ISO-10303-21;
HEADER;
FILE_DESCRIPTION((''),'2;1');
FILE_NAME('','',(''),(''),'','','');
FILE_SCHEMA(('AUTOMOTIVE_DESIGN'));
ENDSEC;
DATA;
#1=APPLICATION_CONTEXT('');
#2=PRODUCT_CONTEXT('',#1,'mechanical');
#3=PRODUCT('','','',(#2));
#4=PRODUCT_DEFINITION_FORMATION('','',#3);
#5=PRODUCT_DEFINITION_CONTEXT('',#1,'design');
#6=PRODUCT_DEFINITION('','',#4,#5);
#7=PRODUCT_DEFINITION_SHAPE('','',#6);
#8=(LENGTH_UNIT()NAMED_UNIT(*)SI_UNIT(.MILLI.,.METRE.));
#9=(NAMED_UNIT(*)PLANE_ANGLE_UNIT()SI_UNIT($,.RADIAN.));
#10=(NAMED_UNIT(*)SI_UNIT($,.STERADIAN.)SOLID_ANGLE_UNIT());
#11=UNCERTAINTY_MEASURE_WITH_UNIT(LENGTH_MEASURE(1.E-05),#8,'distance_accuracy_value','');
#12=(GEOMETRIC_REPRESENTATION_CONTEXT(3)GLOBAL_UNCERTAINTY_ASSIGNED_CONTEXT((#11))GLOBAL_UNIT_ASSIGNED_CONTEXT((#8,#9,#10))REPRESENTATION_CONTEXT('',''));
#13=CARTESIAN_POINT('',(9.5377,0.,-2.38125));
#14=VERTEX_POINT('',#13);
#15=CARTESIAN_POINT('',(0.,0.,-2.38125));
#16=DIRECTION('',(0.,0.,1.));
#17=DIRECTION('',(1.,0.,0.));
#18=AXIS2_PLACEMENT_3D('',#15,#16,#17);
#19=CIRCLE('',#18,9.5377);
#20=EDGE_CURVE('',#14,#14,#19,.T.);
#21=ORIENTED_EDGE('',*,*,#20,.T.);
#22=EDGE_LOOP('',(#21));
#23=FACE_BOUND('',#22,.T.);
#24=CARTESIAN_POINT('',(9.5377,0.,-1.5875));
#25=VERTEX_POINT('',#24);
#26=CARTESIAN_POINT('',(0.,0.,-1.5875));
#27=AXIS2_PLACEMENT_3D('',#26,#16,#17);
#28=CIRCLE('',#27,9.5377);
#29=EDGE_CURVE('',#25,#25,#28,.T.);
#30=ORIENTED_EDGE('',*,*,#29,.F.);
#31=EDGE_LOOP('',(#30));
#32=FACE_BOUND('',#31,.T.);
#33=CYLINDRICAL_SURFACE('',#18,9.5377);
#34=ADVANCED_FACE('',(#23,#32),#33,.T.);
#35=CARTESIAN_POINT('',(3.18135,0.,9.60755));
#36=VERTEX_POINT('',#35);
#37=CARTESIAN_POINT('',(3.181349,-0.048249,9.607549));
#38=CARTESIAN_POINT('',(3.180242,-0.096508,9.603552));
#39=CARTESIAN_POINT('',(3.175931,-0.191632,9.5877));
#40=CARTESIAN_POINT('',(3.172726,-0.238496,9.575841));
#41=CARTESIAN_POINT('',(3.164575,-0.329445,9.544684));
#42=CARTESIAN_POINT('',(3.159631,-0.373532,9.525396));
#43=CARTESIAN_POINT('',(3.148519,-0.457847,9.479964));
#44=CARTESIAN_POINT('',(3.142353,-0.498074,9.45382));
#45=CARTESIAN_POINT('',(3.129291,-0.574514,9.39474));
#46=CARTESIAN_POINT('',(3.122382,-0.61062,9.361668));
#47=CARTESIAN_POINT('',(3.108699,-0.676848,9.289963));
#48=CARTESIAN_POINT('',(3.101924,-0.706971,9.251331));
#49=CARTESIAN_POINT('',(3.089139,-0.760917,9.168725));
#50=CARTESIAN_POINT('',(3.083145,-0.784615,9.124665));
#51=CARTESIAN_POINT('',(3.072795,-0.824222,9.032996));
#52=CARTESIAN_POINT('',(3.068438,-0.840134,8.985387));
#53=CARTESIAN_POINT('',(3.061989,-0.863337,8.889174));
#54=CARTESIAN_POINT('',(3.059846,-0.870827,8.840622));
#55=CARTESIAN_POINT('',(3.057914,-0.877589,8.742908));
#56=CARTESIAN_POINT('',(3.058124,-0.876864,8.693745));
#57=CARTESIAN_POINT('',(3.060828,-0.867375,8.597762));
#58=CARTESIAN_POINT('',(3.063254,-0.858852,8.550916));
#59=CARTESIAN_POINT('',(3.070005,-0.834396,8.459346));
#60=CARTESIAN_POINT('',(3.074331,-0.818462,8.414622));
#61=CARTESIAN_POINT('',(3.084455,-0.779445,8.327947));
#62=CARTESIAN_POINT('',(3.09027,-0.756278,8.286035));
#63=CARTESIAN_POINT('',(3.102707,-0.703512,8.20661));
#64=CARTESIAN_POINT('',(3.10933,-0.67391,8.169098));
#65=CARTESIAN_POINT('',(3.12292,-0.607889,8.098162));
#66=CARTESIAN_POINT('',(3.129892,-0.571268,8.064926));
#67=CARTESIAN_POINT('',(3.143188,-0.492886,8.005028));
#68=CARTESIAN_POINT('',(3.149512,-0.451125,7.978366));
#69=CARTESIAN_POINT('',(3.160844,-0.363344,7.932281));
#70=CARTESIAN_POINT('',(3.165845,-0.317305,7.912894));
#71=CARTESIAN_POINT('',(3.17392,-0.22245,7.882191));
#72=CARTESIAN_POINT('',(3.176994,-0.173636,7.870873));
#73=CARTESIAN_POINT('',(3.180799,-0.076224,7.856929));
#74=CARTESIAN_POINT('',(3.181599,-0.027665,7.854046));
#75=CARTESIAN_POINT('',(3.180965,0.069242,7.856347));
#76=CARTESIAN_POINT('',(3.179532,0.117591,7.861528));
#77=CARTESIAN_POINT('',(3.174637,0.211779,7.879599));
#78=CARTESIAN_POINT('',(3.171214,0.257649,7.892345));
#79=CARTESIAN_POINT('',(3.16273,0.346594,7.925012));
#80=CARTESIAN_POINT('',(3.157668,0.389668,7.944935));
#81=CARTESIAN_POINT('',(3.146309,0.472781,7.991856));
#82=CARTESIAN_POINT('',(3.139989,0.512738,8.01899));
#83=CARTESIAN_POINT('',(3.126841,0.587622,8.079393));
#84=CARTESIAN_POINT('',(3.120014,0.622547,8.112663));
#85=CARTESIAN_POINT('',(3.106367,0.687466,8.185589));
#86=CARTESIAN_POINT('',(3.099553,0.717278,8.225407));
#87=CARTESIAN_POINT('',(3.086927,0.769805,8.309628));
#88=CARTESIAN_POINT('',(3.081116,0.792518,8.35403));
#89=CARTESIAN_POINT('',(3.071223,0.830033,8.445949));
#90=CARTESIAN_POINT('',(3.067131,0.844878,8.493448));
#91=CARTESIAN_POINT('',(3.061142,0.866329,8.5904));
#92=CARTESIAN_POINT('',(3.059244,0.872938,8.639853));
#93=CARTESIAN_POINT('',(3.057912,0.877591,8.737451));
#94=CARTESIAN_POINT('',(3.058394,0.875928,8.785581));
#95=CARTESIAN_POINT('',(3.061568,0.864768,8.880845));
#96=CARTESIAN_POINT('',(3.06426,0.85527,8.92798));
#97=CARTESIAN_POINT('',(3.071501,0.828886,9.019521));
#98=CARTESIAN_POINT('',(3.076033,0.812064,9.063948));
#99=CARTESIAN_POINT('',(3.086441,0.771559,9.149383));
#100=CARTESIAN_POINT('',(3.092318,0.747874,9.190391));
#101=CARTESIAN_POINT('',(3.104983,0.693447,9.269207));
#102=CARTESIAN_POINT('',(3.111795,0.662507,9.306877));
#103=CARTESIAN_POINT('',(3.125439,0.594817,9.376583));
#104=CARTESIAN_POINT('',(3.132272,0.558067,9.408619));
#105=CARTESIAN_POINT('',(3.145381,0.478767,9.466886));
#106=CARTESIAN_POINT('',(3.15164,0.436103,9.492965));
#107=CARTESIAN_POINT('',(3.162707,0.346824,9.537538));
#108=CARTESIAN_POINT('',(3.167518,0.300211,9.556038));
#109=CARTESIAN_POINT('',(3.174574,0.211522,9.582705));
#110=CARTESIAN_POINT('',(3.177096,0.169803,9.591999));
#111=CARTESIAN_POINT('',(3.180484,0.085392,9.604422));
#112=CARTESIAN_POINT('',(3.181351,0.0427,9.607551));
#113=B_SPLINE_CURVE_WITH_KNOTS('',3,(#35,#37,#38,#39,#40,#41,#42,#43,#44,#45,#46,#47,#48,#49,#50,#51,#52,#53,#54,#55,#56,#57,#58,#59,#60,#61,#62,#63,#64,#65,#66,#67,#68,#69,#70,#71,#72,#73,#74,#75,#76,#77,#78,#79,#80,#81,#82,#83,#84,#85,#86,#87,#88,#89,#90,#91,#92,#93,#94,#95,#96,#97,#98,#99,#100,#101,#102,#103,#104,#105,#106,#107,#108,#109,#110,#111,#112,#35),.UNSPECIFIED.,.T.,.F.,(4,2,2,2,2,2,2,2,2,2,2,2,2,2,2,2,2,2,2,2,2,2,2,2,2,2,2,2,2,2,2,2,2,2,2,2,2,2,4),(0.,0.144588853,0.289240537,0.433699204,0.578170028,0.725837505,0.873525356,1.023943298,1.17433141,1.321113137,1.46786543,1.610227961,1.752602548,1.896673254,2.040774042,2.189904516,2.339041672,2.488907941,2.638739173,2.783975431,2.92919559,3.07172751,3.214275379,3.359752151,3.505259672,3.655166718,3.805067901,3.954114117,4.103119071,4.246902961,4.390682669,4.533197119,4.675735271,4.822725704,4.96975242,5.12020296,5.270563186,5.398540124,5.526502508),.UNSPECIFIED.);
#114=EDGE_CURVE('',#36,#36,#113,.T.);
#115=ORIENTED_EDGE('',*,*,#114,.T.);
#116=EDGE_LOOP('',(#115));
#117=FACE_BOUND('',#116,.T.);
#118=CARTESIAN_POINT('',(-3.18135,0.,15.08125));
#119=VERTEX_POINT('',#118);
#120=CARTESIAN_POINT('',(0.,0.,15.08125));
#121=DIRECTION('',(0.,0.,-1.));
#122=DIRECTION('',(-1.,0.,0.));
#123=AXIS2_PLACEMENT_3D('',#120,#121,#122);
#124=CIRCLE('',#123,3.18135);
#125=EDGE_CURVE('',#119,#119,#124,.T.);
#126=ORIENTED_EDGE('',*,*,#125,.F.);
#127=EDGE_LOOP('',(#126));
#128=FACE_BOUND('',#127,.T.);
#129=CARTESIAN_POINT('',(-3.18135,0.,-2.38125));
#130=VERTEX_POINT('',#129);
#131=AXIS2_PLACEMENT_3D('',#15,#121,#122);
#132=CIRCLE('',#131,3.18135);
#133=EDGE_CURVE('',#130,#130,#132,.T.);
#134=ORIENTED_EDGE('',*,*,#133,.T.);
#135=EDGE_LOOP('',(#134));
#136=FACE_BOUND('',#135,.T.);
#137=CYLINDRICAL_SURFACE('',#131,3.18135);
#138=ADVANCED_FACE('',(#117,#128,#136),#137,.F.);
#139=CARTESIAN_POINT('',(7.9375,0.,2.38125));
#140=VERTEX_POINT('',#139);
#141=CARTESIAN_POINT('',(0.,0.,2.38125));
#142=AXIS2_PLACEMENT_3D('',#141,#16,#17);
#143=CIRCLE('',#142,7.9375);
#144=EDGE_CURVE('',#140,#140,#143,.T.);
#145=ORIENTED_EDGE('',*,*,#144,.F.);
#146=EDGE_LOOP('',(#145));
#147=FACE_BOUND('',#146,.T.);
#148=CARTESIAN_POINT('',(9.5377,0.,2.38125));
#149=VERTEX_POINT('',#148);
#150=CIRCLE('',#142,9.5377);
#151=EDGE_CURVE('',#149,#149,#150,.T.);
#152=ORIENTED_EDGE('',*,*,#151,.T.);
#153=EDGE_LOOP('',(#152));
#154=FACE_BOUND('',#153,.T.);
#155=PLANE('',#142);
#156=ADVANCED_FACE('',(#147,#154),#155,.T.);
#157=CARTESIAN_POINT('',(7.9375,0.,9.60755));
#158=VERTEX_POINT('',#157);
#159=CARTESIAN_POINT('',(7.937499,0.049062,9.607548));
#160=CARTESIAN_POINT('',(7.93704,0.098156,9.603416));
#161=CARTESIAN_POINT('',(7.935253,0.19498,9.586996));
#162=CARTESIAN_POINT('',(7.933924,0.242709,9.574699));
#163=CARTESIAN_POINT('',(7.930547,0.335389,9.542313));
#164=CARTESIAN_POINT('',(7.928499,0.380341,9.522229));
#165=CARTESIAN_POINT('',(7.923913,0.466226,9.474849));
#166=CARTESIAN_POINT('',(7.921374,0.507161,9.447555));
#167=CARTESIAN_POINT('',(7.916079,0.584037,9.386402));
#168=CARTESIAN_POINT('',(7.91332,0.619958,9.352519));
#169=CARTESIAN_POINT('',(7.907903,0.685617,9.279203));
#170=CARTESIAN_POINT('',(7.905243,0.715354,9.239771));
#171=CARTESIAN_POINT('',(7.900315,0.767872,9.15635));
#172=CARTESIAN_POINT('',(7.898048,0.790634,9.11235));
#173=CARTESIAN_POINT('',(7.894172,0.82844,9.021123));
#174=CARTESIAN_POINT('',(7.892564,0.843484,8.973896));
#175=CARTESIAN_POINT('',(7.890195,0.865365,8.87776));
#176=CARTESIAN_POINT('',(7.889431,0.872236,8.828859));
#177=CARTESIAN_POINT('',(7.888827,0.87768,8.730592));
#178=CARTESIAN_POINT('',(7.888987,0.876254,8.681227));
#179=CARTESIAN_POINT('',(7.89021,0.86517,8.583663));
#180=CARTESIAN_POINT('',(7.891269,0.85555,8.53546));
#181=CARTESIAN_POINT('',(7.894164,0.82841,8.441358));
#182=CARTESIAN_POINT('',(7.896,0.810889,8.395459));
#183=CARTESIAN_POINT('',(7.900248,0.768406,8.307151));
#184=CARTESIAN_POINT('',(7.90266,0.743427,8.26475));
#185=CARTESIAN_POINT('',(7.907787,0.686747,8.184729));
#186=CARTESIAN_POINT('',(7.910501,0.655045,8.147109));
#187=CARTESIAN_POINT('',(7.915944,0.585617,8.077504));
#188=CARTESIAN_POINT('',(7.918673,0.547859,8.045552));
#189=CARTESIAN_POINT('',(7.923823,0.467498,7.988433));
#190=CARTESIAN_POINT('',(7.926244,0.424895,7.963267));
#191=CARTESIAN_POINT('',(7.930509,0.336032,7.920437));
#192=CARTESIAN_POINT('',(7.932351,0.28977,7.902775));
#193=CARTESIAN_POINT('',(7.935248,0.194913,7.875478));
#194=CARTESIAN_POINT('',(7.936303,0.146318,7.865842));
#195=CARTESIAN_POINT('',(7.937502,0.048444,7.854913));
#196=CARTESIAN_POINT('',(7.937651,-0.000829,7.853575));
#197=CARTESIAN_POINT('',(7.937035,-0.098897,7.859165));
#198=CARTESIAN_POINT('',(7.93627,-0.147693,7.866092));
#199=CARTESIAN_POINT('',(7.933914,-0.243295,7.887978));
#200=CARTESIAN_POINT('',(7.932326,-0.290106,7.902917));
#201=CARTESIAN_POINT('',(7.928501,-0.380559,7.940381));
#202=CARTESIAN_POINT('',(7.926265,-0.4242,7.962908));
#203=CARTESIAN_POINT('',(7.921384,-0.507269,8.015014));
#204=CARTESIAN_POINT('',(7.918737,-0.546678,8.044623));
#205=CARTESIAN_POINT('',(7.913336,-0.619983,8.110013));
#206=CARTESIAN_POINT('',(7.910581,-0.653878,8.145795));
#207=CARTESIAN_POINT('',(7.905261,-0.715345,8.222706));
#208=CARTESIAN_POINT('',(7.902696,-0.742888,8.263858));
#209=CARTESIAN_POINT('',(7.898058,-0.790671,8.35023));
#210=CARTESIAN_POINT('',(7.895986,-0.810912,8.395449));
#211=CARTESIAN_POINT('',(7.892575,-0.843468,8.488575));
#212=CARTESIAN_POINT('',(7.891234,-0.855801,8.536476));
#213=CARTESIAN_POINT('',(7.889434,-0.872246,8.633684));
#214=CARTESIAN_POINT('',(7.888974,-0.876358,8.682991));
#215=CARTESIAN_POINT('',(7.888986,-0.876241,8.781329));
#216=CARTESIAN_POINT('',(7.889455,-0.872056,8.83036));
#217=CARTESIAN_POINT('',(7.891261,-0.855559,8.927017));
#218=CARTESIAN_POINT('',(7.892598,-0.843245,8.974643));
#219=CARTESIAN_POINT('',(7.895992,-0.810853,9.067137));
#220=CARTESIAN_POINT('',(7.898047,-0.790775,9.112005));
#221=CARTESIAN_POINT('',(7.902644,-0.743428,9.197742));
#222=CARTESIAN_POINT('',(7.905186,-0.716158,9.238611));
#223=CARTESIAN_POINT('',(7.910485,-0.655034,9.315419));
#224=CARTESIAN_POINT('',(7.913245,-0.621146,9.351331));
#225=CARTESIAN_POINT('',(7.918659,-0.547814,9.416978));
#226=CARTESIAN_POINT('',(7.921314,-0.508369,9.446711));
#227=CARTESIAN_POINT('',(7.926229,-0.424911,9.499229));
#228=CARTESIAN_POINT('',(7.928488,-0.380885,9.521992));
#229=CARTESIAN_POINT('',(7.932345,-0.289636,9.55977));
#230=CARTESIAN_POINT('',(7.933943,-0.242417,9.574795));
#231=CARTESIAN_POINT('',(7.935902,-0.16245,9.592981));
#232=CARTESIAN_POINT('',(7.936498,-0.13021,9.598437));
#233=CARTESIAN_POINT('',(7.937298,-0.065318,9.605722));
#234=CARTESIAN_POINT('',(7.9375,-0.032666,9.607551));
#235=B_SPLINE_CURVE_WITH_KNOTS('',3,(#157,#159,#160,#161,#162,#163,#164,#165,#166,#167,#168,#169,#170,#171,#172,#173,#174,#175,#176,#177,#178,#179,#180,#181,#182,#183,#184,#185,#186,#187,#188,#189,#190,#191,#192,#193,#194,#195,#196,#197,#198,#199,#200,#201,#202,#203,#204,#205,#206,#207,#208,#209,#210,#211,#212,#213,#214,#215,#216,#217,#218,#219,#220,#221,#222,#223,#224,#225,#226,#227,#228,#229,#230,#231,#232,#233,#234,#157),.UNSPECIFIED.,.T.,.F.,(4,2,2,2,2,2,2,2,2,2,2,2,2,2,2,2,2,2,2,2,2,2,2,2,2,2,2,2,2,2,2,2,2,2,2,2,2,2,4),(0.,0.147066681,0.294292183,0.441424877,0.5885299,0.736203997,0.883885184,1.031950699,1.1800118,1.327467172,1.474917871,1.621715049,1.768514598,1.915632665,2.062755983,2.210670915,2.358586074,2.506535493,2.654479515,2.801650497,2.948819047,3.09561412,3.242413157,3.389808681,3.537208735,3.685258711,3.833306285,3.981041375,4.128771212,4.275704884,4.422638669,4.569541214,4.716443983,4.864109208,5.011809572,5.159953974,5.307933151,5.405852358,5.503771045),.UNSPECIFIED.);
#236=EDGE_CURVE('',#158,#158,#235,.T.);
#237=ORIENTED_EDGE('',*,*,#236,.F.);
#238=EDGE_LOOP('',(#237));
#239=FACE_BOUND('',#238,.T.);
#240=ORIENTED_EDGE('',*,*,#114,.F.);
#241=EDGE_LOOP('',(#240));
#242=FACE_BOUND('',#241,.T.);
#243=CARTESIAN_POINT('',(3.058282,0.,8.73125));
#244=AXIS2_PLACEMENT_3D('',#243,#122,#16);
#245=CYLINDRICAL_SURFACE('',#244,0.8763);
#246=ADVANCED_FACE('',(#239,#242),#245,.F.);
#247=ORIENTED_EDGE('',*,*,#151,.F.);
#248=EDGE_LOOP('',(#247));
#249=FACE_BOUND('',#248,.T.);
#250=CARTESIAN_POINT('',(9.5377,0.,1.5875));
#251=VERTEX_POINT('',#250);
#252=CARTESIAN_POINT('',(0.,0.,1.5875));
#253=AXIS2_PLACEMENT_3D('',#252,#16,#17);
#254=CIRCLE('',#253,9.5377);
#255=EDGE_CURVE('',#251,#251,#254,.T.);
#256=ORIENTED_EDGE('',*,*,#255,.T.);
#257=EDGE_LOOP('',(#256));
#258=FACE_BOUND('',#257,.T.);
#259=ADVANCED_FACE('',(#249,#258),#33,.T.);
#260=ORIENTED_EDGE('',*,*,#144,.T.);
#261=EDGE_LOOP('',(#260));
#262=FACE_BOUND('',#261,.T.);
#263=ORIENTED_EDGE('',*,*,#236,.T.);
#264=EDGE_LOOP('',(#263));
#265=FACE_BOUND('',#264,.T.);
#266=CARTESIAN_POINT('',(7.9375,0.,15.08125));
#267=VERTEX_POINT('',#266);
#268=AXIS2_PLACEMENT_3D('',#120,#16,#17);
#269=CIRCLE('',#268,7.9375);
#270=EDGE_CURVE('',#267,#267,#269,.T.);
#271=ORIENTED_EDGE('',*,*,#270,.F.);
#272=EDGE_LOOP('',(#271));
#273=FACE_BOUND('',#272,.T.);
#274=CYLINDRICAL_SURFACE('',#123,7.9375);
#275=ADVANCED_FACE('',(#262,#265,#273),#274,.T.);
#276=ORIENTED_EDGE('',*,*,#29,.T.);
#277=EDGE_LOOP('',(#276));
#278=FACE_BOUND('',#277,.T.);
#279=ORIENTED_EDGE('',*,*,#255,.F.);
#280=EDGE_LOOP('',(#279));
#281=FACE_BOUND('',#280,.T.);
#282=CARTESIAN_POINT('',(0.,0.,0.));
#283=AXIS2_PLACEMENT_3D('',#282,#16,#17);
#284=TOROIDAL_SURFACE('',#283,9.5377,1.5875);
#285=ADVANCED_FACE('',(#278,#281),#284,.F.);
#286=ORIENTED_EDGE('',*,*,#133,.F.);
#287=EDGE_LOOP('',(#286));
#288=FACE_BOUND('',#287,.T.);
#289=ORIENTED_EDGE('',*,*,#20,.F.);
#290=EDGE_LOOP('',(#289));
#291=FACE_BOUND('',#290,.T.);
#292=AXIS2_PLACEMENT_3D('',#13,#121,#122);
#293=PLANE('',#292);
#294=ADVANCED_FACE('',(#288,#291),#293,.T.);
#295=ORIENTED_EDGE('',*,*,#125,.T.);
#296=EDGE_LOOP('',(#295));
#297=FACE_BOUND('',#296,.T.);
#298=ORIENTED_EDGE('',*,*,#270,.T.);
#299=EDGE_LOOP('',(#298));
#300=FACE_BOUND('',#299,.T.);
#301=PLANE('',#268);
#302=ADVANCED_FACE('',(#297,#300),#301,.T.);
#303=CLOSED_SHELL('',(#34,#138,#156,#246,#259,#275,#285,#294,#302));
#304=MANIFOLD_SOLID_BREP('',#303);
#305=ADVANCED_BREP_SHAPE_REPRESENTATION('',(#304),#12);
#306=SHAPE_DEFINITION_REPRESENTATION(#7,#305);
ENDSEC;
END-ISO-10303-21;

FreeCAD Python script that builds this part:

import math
import FreeCAD as App
import Part
import Sketcher
Q = App.Units.Quantity

doc = App.newDocument("Part")
body = doc.addObject("PartDesign::Body", "Body")

# Sketch on XZ plane
sketch1 = body.newObject("Sketcher::SketchObject", "Sketch")
sketch1.AttachmentSupport = (doc.getObject("XZ_Plane"), [""])
sketch1.MapMode = "FlatFace"
sketch1.addGeometry(Part.LineSegment(App.Vector(9.5, -2.4, 0), App.Vector(0, -2.4, 0)), False)
sketch1.addGeometry(Part.LineSegment(App.Vector(0, -2.4, 0), App.Vector(0, 2.4, 0)), False)
sketch1.addGeometry(Part.LineSegment(App.Vector(0, 2.4, 0), App.Vector(9.5, 2.4, 0)), False)
sketch1.addGeometry(Part.LineSegment(App.Vector(9.5, 2.4, 0), App.Vector(9.5, 1.6, 0)), False)
sketch1.addGeometry(Part.ArcOfCircle(Part.Circle(App.Vector(9.5, 0, 0), App.Vector(0, 0, 1), 1.6), math.radians(90), math.radians(270)), False)
sketch1.addGeometry(Part.LineSegment(App.Vector(9.5, -1.6, 0), App.Vector(9.5, -2.4, 0)), False)
sketch1.addConstraint(Sketcher.Constraint("Coincident", 0, 2, 1, 1))
sketch1.addConstraint(Sketcher.Constraint("Coincident", 1, 2, 2, 1))
sketch1.addConstraint(Sketcher.Constraint("Coincident", 2, 2, 3, 1))
sketch1.addConstraint(Sketcher.Constraint("Coincident", 3, 2, 4, 1))
sketch1.addConstraint(Sketcher.Constraint("Coincident", 4, 2, 5, 1))
sketch1.addConstraint(Sketcher.Constraint("Coincident", 5, 2, 0, 1))
sketch1.addConstraint(Sketcher.Constraint("Horizontal", 0))
sketch1.addConstraint(Sketcher.Constraint("Vertical", 1))
sketch1.addConstraint(Sketcher.Constraint("Horizontal", 2))
sketch1.addConstraint(Sketcher.Constraint("Vertical", 3))
sketch1.addConstraint(Sketcher.Constraint("Vertical", 5))
sketch1.addConstraint(Sketcher.Constraint("Symmetric", 0, 2, 1, 2, -1, 1))
sketch1.addConstraint(Sketcher.Constraint("Symmetric", 3, 2, 4, 2, -1))
sketch1.addConstraint(Sketcher.Constraint("Vertical", 4, 3, 2, 2))
sketch1.addConstraint(Sketcher.Constraint("Radius", 4, Q("0.0625 in")))
sketch1.addConstraint(Sketcher.Constraint("DistanceY", 1, 1, 1, 2, Q("0.1875 in")))
sketch1.addConstraint(Sketcher.Constraint("DistanceX", 0, 2, 0, 1, Q("0.3755 in")))
revolution = body.newObject("PartDesign::Revolution", "Revolution")
revolution.Profile = sketch1
revolution.ReferenceAxis = (sketch1, ["V_Axis"])
revolution.Angle = 360

# Sketch on XY plane
sketch2 = body.newObject("Sketcher::SketchObject", "Sketch001")
sketch2.AttachmentSupport = (doc.getObject("XY_Plane"), [""])
sketch2.MapMode = "FlatFace"
sketch2.AttachmentOffset = App.Placement(App.Vector(0, 0, 0.09375 * 25.4), App.Rotation())
sketch2.addGeometry(Part.Circle(App.Vector(0, 0, 0), App.Vector(0, 0, 1), 8), False)
sketch2.addConstraint(Sketcher.Constraint("Coincident", 0, 3, -1, 1))
sketch2.addConstraint(Sketcher.Constraint("Diameter", 0, Q("0.625 in")))
pad1 = body.newObject("PartDesign::Pad", "Pad")
pad1.Profile = sketch2
pad1.Length = Q("0.5 in")

# Sketch on XY plane
sketch3 = body.newObject("Sketcher::SketchObject", "Sketch002")
sketch3.AttachmentSupport = (doc.getObject("XY_Plane"), [""])
sketch3.MapMode = "FlatFace"
sketch3.AttachmentOffset = App.Placement(App.Vector(0, 0, -0.09375 * 25.4), App.Rotation())
sketch3.addGeometry(Part.Circle(App.Vector(0, 0, 0), App.Vector(0, 0, 1), 3.2), False)
sketch3.addConstraint(Sketcher.Constraint("Coincident", 0, 3, -1, 1))
sketch3.addConstraint(Sketcher.Constraint("Diameter", 0, Q("0.2505 in")))
doc.recompute()
hole = body.newObject("PartDesign::Hole", "Hole")
hole.Profile = sketch3
hole.ThreadType = "None"
hole.Diameter = Q("0.2505 in")
hole.DepthType = "ThroughAll"
hole.Reversed = True

# Sketch on XZ plane
sketch4 = body.newObject("Sketcher::SketchObject", "Sketch003")
sketch4.AttachmentSupport = (doc.getObject("XZ_Plane"), [""])
sketch4.MapMode = "FlatFace"
sketch4.addGeometry(Part.LineSegment(App.Vector(9.5, 8.7, 0), App.Vector(3.1, 8.7, 0)), False)
sketch4.addGeometry(Part.LineSegment(App.Vector(3.1, 8.7, 0), App.Vector(3.1, 9.6, 0)), False)
sketch4.addGeometry(Part.LineSegment(App.Vector(3.1, 9.6, 0), App.Vector(9.5, 9.6, 0)), False)
sketch4.addGeometry(Part.LineSegment(App.Vector(9.5, 9.6, 0), App.Vector(9.5, 8.7, 0)), False)
sketch4.addGeometry(Part.LineSegment(App.Vector(3.1, 8.7, 0), App.Vector(9.5, 8.7, 0)), True)  # axis
sketch4.addConstraint(Sketcher.Constraint("Coincident", 0, 2, 1, 1))
sketch4.addConstraint(Sketcher.Constraint("Coincident", 1, 2, 2, 1))
sketch4.addConstraint(Sketcher.Constraint("Coincident", 2, 2, 3, 1))
sketch4.addConstraint(Sketcher.Constraint("Coincident", 3, 2, 0, 1))
sketch4.addConstraint(Sketcher.Constraint("Horizontal", 0))
sketch4.addConstraint(Sketcher.Constraint("Vertical", 1))
sketch4.addConstraint(Sketcher.Constraint("Horizontal", 2))
sketch4.addConstraint(Sketcher.Constraint("Vertical", 3))
sketch4.addConstraint(Sketcher.Constraint("Horizontal", 4))
sketch4.addConstraint(Sketcher.Constraint("Coincident", 4, 1, 0, 2))
sketch4.addConstraint(Sketcher.Constraint("Vertical", 2, 2, 4, 2))
sketch4.addConstraint(Sketcher.Constraint("DistanceY", 1, 1, 1, 2, Q("0.0345 in")))
sketch4.addConstraint(Sketcher.Constraint("DistanceY", -1, 1, 0, 2, Q("0.34375 in")))
sketch4.addConstraint(Sketcher.Constraint("DistanceX", -1, 1, 2, 2, Q("0.3755 in")))
sketch4.addConstraint(Sketcher.Constraint("DistanceX", 0, 2, 0, 1, 6.479418))
groove = body.newObject("PartDesign::Groove", "Groove")
groove.Profile = sketch4
groove.ReferenceAxis = (sketch4, ["Axis0"])
groove.Angle = 360

doc.recompute()
